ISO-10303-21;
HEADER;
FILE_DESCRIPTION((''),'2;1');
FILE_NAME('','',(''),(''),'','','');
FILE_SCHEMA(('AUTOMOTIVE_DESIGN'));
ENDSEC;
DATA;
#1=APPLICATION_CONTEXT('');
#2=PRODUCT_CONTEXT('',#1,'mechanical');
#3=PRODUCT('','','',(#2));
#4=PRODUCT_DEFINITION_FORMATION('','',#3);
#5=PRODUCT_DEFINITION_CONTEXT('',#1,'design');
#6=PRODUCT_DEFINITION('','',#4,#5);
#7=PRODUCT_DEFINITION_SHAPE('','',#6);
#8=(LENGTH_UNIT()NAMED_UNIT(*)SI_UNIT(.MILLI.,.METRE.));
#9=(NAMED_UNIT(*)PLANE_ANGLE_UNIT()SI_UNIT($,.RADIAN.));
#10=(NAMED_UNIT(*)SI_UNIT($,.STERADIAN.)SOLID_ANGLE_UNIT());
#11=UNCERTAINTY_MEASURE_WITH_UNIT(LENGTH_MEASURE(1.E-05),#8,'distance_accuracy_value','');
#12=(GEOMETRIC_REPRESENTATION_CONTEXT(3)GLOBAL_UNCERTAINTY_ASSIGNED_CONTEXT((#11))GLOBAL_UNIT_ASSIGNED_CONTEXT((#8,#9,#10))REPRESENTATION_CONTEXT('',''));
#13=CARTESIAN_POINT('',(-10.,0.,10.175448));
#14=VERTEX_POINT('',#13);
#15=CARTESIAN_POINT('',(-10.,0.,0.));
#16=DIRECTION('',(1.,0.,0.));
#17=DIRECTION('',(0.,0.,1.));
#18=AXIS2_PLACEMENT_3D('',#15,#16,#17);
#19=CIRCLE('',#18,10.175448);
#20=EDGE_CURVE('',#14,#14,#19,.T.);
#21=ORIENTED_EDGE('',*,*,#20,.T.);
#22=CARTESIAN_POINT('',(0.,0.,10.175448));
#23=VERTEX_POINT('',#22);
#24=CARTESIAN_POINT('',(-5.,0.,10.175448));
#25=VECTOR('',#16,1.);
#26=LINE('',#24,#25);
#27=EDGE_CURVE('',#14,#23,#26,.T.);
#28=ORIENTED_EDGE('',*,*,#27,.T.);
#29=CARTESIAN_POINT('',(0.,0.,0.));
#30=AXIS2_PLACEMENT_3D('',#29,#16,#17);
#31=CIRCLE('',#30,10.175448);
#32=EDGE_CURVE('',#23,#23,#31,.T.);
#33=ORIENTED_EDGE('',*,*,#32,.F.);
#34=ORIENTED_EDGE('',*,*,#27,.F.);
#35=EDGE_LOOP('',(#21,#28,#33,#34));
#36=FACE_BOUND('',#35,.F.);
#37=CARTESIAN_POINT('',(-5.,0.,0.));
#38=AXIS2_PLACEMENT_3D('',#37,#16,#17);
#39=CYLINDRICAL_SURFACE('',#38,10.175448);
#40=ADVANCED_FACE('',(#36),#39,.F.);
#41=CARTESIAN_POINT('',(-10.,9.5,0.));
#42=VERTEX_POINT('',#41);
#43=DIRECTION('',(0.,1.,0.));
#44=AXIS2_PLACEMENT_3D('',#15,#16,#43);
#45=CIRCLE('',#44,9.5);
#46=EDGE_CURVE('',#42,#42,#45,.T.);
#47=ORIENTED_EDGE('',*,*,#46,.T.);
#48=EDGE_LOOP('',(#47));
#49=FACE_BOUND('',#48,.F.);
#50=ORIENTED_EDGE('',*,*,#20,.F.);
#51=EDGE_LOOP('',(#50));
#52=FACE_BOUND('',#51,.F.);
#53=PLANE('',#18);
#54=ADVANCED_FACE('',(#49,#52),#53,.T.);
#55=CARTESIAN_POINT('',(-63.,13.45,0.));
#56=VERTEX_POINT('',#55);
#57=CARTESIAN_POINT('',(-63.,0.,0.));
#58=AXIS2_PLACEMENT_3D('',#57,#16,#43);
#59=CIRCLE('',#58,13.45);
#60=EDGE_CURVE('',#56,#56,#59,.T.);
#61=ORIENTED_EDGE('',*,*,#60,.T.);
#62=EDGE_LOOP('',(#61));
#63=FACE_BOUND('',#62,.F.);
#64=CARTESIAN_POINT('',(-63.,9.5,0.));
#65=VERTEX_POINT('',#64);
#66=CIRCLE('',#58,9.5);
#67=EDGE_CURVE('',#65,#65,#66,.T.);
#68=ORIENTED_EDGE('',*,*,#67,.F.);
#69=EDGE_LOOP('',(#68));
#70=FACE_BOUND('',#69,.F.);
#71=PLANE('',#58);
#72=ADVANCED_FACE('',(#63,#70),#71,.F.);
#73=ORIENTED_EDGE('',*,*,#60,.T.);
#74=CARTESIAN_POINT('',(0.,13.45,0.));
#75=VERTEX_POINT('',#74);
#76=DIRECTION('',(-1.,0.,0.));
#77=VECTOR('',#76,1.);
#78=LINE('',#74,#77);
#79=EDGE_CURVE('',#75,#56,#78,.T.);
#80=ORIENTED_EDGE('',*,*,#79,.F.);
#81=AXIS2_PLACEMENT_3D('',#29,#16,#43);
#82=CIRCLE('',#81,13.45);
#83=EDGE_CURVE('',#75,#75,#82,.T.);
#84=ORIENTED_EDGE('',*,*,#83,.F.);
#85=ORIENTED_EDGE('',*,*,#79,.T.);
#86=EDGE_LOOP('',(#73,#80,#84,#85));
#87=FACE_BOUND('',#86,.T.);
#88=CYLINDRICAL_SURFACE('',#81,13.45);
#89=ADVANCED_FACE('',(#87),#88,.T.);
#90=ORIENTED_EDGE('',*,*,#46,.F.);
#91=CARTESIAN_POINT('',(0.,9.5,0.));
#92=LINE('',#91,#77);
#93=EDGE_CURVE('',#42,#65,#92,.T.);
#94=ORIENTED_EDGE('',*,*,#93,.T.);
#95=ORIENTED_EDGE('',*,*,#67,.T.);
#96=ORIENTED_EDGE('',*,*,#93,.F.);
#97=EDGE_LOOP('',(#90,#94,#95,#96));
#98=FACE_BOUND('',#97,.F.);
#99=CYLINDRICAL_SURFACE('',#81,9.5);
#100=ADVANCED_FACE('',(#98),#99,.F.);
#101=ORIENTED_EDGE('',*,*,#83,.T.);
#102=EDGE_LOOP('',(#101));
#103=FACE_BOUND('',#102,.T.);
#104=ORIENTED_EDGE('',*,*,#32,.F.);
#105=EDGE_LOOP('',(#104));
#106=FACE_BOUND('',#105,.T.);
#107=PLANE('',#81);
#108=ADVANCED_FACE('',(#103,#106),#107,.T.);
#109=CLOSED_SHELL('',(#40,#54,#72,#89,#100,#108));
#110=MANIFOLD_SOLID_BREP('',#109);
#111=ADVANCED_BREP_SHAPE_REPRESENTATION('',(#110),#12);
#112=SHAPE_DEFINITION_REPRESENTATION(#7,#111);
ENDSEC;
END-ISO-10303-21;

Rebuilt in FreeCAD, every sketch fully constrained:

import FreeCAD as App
import Part
import Sketcher

doc = App.newDocument("Part")
body = doc.addObject("PartDesign::Body", "Body")

# Sketch on YZ plane
sketch1 = body.newObject("Sketcher::SketchObject", "Sketch")
sketch1.AttachmentSupport = (doc.getObject("YZ_Plane"), [""])
sketch1.MapMode = "FlatFace"
sketch1.addGeometry([
    Part.Circle(App.Vector(0, 0, 0), App.Vector(0, 0, 1), 13.45),
    Part.Circle(App.Vector(0, 0, 0), App.Vector(0, 0, 1), 9.5),
], False)
sketch1.addConstraint([
    Sketcher.Constraint("Coincident", 0, 3, -1, 1),
    Sketcher.Constraint("Coincident", 1, 3, -1, 1),
    Sketcher.Constraint("Diameter", 1, 19.0),
    Sketcher.Constraint("Diameter", 0, 26.9),
])
pad1 = body.newObject("PartDesign::Pad", "Pad")
pad1.Profile = sketch1
pad1.Length = 63
pad1.Reversed = True

# Sketch on XZ plane
sketch2 = body.newObject("Sketcher::SketchObject", "Sketch001")
sketch2.AttachmentSupport = (doc.getObject("XZ_Plane"), [""])
sketch2.MapMode = "FlatFace"
sketch2.addGeometry([
    Part.LineSegment(App.Vector(-10, 10.175448, 0), App.Vector(-10, 9.375448, 0)),
    Part.LineSegment(App.Vector(-10, 9.375448, 0), App.Vector(0, 9.375448, 0)),
    Part.LineSegment(App.Vector(0, 9.375448, 0), App.Vector(0, 10.175448, 0)),
    Part.LineSegment(App.Vector(0, 10.175448, 0), App.Vector(-10, 10.175448, 0)),
], False)
sketch2.addConstraint([
    Sketcher.Constraint("Coincident", 0, 2, 1, 1),
    Sketcher.Constraint("Coincident", 1, 2, 2, 1),
    Sketcher.Constraint("Coincident", 2, 2, 3, 1),
    Sketcher.Constraint("Coincident", 3, 2, 0, 1),
    Sketcher.Constraint("Vertical", 0),
    Sketcher.Constraint("Horizontal", 1),
    Sketcher.Constraint("Vertical", 2),
    Sketcher.Constraint("Horizontal", 3),
    Sketcher.Constraint("PointOnObject", 1, 2, -2),
    Sketcher.Constraint("DistanceX", 1, 1, 1, 2, 10.0),
    Sketcher.Constraint("DistanceY", 0, 2, 0, 1, 0.8),
    Sketcher.Constraint("DistanceY", -1, 1, 0, 2, 9.375448),
])
groove = body.newObject("PartDesign::Groove", "Groove")
groove.Profile = sketch2
groove.ReferenceAxis = (sketch2, ["H_Axis"])
groove.Angle = 360

doc.recompute()
